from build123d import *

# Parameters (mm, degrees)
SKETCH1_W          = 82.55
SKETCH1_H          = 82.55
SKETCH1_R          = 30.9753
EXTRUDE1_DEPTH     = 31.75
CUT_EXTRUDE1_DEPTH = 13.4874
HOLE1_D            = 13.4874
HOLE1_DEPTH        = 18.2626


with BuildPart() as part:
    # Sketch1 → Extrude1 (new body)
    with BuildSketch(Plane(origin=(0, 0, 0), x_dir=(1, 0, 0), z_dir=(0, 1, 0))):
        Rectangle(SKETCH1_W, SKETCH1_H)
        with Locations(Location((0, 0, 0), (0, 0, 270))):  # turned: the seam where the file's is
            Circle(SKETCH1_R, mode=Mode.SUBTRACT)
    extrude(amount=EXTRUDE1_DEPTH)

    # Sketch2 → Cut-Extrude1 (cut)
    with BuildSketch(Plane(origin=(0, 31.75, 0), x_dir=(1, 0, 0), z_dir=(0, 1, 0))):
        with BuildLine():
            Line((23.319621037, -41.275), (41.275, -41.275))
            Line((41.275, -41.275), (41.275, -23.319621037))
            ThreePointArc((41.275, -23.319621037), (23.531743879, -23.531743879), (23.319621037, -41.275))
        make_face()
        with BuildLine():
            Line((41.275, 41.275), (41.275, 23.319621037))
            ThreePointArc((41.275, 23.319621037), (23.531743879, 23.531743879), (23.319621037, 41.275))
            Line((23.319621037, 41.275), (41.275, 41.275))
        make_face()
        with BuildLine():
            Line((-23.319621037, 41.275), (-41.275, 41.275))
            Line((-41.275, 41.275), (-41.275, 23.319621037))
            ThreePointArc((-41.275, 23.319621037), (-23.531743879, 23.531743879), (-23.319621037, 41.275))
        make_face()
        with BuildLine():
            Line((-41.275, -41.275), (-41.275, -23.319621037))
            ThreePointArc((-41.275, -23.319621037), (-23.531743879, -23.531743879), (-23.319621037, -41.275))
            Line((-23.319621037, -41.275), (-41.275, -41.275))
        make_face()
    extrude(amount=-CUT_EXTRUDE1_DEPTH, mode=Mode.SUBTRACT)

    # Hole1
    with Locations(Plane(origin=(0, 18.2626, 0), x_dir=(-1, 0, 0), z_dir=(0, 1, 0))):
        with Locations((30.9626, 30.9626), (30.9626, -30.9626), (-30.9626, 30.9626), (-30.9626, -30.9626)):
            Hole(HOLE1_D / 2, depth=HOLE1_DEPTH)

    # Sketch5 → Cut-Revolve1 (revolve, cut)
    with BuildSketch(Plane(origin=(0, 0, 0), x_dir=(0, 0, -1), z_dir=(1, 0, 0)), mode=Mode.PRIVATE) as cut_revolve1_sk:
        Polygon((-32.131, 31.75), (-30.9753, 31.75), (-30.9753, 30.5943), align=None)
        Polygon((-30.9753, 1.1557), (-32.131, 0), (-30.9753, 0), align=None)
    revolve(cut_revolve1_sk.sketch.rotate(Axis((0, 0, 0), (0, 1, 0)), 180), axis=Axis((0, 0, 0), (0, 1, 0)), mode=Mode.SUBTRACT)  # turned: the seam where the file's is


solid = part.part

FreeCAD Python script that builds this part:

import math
import FreeCAD as App
import Part
import Sketcher

V = App.Vector
Q = App.Units.Quantity


def add_polygon(sketch, points):
    """Adds a closed chain of lines whose ends are joined by coincident constraints."""
    first, n = sketch.GeometryCount, len(points)
    for a, b in zip(points, points[1:] + points[:1]):
        sketch.addGeometry(Part.LineSegment(App.Vector(*a, 0), App.Vector(*b, 0)), False)
    for i in range(n):
        sketch.addConstraint(Sketcher.Constraint("Coincident", first + i, 2, first + (i + 1) % n, 1))

doc = App.newDocument("Part")
body = doc.addObject("PartDesign::Body", "Body")

# Sketch on XZ plane
sketch1 = body.newObject("Sketcher::SketchObject", "Sketch")
sketch1.AttachmentSupport = (doc.getObject("XZ_Plane"), [""])
sketch1.MapMode = "FlatFace"
add_polygon(sketch1, [(-41, -41), (-41, 41), (41, 41), (41, -41)])  # lines 0-3
sketch1.addGeometry(Part.Circle(V(0, 0, 0), V(0, 0, 1), 31), False)  # 4
sketch1.addConstraint([
    Sketcher.Constraint("Vertical", 0),
    Sketcher.Constraint("Horizontal", 1),
    Sketcher.Constraint("Vertical", 2),
    Sketcher.Constraint("Horizontal", 3),
    Sketcher.Constraint("Coincident", 4, 3, -1, 1),
    Sketcher.Constraint("Symmetric", 0, 2, 2, 2, -1, 1),
    Sketcher.Constraint("Equal", 3, 0),
    Sketcher.Constraint("Diameter", 4, Q("2.439 in")),
    Sketcher.Constraint("DistanceX", 1, 1, 1, 2, Q("3.25 in")),
])
pad1 = body.newObject("PartDesign::Pad", "Pad")
pad1.Profile = sketch1
pad1.Length = Q("1.25 in")
pad1.Reversed = True

# Sketch on XZ plane
sketch2 = body.newObject("Sketcher::SketchObject", "Sketch001")
sketch2.AttachmentSupport = (doc.getObject("XZ_Plane"), [""])
sketch2.MapMode = "FlatFace"
sketch2.AttachmentOffset = App.Placement(V(0, 0, -1.25 * 25.4), App.Rotation())
sketch2.addGeometry([
    Part.LineSegment(V(23, 41, 0), V(41, 41, 0)),  # 0
    Part.LineSegment(V(41, 41, 0), V(41, 23, 0)),  # 1
    Part.ArcOfCircle(Part.Circle(V(33, 33, 0), V(0, 0, 1), 13), math.radians(136), math.radians(314)),  # 2
    Part.LineSegment(V(41, -23, 0), V(41, -41, 0)),  # 3
    Part.LineSegment(V(41, -41, 0), V(23, -41, 0)),  # 4
    Part.ArcOfCircle(Part.Circle(V(33, -33, 0), V(0, 0, 1), 13), math.radians(46), math.radians(224)),  # 5
    Part.LineSegment(V(-23, -41, 0), V(-41, -41, 0)),  # 6
    Part.LineSegment(V(-41, -41, 0), V(-41, -23, 0)),  # 7
    Part.ArcOfCircle(Part.Circle(V(-33, -33, 0), V(0, 0, 1), 13), math.radians(-44), math.radians(134)),  # 8
    Part.LineSegment(V(-41, 23, 0), V(-41, 41, 0)),  # 9
    Part.LineSegment(V(-41, 41, 0), V(-23, 41, 0)),  # 10
    Part.ArcOfCircle(Part.Circle(V(-33, 33, 0), V(0, 0, 1), 13), math.radians(-134), math.radians(44)),  # 11
], False)
sketch2.addConstraint([
    Sketcher.Constraint("Coincident", 0, 2, 1, 1),
    Sketcher.Constraint("Coincident", 1, 2, 2, 2),
    Sketcher.Constraint("Coincident", 2, 1, 0, 1),
    Sketcher.Constraint("Coincident", 3, 2, 4, 1),
    Sketcher.Constraint("Coincident", 4, 2, 5, 2),
    Sketcher.Constraint("Coincident", 5, 1, 3, 1),
    Sketcher.Constraint("Coincident", 6, 2, 7, 1),
    Sketcher.Constraint("Coincident", 7, 2, 8, 2),
    Sketcher.Constraint("Coincident", 8, 1, 6, 1),
    Sketcher.Constraint("Coincident", 9, 2, 10, 1),
    Sketcher.Constraint("Coincident", 10, 2, 11, 2),
    Sketcher.Constraint("Coincident", 11, 1, 9, 1),
    Sketcher.Constraint("Horizontal", 0),
    Sketcher.Constraint("Vertical", 1),
    Sketcher.Constraint("Vertical", 3),
    Sketcher.Constraint("Horizontal", 4),
    Sketcher.Constraint("Horizontal", 6),
    Sketcher.Constraint("Vertical", 7),
    Sketcher.Constraint("Vertical", 9),
    Sketcher.Constraint("Horizontal", 10),
    Sketcher.Constraint("Equal", 2, 5),
    Sketcher.Constraint("Equal", 5, 8),
    Sketcher.Constraint("Equal", 8, 11),
    Sketcher.Constraint("Symmetric", 2, 3, 8, 3, -1, 1),
    Sketcher.Constraint("Symmetric", 5, 3, 11, 3, -1, 1),
    Sketcher.Constraint("Symmetric", 0, 2, 6, 2, -1, 1),
    Sketcher.Constraint("Symmetric", 3, 2, 9, 2, -1, 1),
    Sketcher.Constraint("Symmetric", 5, 3, 8, 3, -2),
    Sketcher.Constraint("Symmetric", 3, 2, 6, 2, -2),
    Sketcher.Constraint("Equal", 10, 1),
    Sketcher.Constraint("Radius", 2, Q("0.5 in")),
    Sketcher.Constraint("DistanceX", -1, 1, 2, 3, Q("1.28 in")),
    Sketcher.Constraint("DistanceY", -1, 1, 2, 3, Q("1.28 in")),
    Sketcher.Constraint("DistanceY", 3, 2, 0, 2, Q("3.25 in")),
])
pocket1 = body.newObject("PartDesign::Pocket", "Pocket")
pocket1.Profile = sketch2
pocket1.Length = Q("0.531 in")
pocket1.Reversed = True

# Sketch on XZ plane
sketch3 = body.newObject("Sketcher::SketchObject", "Sketch002")
sketch3.AttachmentSupport = (doc.getObject("XZ_Plane"), [""])
sketch3.MapMode = "FlatFace"
sketch3.AttachmentOffset = App.Placement(V(0, 0, -0.719 * 25.4), App.Rotation())
sketch3.addGeometry([
    Part.Circle(V(-31, 31, 0), V(0, 0, 1), 7),
    Part.Circle(V(-31, -31, 0), V(0, 0, 1), 7),
    Part.Circle(V(31, 31, 0), V(0, 0, 1), 7),
    Part.Circle(V(31, -31, 0), V(0, 0, 1), 7),
], False)
sketch3.addConstraint([
    Sketcher.Constraint("Equal", 0, 1),
    Sketcher.Constraint("Equal", 1, 2),
    Sketcher.Constraint("Equal", 2, 3),
    Sketcher.Constraint("Symmetric", 1, 3, 2, 3, -1, 1),
    Sketcher.Constraint("Symmetric", 0, 3, 3, 3, -1, 1),
    Sketcher.Constraint("Symmetric", 0, 3, 2, 3, -2),
    Sketcher.Constraint("Diameter", 0, Q("0.531 in")),
    Sketcher.Constraint("DistanceX", 0, 3, -1, 1, Q("1.219 in")),
    Sketcher.Constraint("DistanceY", -1, 1, 0, 3, Q("1.219 in")),
])
doc.recompute()
hole = body.newObject("PartDesign::Hole", "Hole")
hole.Profile = sketch3
hole.ThreadType = "None"
hole.Diameter = Q("0.531 in")
hole.DepthType = "Dimension"
hole.Depth = Q("0.719 in")
hole.DrillPoint = "Flat"
hole.Reversed = True

# Sketch on YZ plane
sketch4 = body.newObject("Sketcher::SketchObject", "Sketch003")
sketch4.AttachmentSupport = (doc.getObject("YZ_Plane"), [""])
sketch4.MapMode = "FlatFace"
add_polygon(sketch4, [(31.8, 31), (31.8, 32.1), (30.6, 31)])  # lines 0-2
add_polygon(sketch4, [(1.2, 31), (0, 32.1), (0, 31)])  # lines 3-5
sketch4.addConstraint([
    Sketcher.Constraint("Vertical", 0),
    Sketcher.Constraint("Horizontal", 2),
    Sketcher.Constraint("Vertical", 4),
    Sketcher.Constraint("Horizontal", 5),
    Sketcher.Constraint("PointOnObject", 3, 2, -2),
    Sketcher.Constraint("Perpendicular", 1, 3),
    Sketcher.Constraint("Horizontal", 0, 2, 3, 2),
    Sketcher.Constraint("Horizontal", 2, 2, 4, 2),
    Sketcher.Constraint("Equal", 2, 5),
    Sketcher.Constraint("DistanceX", -1, 1, 0, 2, Q("1.25 in")),
    Sketcher.Constraint("DistanceX", 2, 1, 2, 2, Q("0.0455 in")),
    Sketcher.Constraint("DistanceY", -1, 1, 0, 2, Q("1.265 in")),
])
groove = body.newObject("PartDesign::Groove", "Groove")
groove.Profile = sketch4
groove.ReferenceAxis = (sketch4, ["H_Axis"])
groove.Angle = 360

doc.recompute()
